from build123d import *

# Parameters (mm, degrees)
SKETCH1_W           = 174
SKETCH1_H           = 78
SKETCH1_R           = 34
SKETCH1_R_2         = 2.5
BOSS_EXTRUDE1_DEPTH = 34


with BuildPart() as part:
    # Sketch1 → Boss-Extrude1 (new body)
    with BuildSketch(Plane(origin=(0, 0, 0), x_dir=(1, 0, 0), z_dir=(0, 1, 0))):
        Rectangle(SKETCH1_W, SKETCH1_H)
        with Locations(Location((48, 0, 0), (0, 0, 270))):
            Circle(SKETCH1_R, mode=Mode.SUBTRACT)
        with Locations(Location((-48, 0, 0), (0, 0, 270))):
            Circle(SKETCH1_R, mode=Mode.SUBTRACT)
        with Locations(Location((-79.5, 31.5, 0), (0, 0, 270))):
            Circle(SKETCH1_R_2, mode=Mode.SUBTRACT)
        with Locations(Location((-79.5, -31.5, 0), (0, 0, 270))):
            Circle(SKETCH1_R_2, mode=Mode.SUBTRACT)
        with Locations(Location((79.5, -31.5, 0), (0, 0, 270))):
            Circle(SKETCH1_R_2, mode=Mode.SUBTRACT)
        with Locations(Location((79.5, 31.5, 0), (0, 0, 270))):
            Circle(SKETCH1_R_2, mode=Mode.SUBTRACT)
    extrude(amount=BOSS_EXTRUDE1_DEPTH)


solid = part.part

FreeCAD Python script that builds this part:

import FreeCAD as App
import Part
import Sketcher
from FreeCAD import Vector

doc = App.newDocument("Part")
params = doc.addObject("Spreadsheet::Sheet", "Params")
for row, (alias, value) in enumerate([
    ("sketch1_diameter", "5 mm"),
    ("sketch1_diameter2", "68 mm"),
    ("sketch1_width", "174 mm"),
    ("sketch1_height", "78 mm"),
    ("pad1_length", "34 mm"),
], start=1):
    params.set(f"A{row}", alias)
    params.set(f"B{row}", "=" + value)
    params.setAlias(f"B{row}", alias)

body = doc.addObject("PartDesign::Body", "Body")

# Sketch on XZ plane
sketch1 = doc.addObject("Sketcher::SketchObject", "Sketch")
body.addObject(sketch1)
sketch1.AttachmentSupport = (doc.XZ_Plane, [""])
sketch1.MapMode = "FlatFace"
sketch1.addGeometry([
    Part.LineSegment(Vector(-87, -39, 0), Vector(-87, 39, 0)),  # 0
    Part.LineSegment(Vector(-87, 39, 0), Vector(87, 39, 0)),  # 1
    Part.LineSegment(Vector(87, 39, 0), Vector(87, -39, 0)),  # 2
    Part.LineSegment(Vector(87, -39, 0), Vector(-87, -39, 0)),  # 3
    Part.Circle(Vector(-79.5, 31.5, 0), Vector(0, 0, 1), 2.5),  # 4
    Part.Circle(Vector(79.5, 31.5, 0), Vector(0, 0, 1), 2.5),  # 5
    Part.Circle(Vector(-48, 0, 0), Vector(0, 0, 1), 34),  # 6
    Part.Circle(Vector(-79.5, -31.5, 0), Vector(0, 0, 1), 2.5),  # 7
    Part.Circle(Vector(48, 0, 0), Vector(0, 0, 1), 34),  # 8
    Part.Circle(Vector(79.5, -31.5, 0), Vector(0, 0, 1), 2.5),  # 9
], False)
sketch1.addConstraint([
    Sketcher.Constraint("Coincident", 0, 2, 1, 1),
    Sketcher.Constraint("Coincident", 1, 2, 2, 1),
    Sketcher.Constraint("Coincident", 2, 2, 3, 1),
    Sketcher.Constraint("Coincident", 3, 2, 0, 1),
    Sketcher.Constraint("Vertical", 0),
    Sketcher.Constraint("Horizontal", 1),
    Sketcher.Constraint("Vertical", 2),
    Sketcher.Constraint("Horizontal", 3),
    Sketcher.Constraint("Equal", 4, 5),
    Sketcher.Constraint("Equal", 5, 7),
    Sketcher.Constraint("Equal", 6, 8),
    Sketcher.Constraint("Equal", 7, 9),
    Sketcher.Constraint("Symmetric", 5, 3, 7, 3, -1, 1),
    Sketcher.Constraint("Symmetric", 6, 3, 8, 3, -1, 1),
    Sketcher.Constraint("Symmetric", 4, 3, 9, 3, -1, 1),
    Sketcher.Constraint("Symmetric", 0, 2, 2, 2, -1, 1),
    Sketcher.Constraint("Symmetric", 4, 3, 5, 3, -2),
    Sketcher.Constraint("PointOnObject", 6, 3, -1),
    Sketcher.Constraint("Diameter", 4, 5.0),
    Sketcher.Constraint("Diameter", 6, 68.0),
    Sketcher.Constraint("DistanceX", 1, 1, 1, 2, 174.0),
    Sketcher.Constraint("DistanceY", 0, 1, 0, 2, 78.0),
    Sketcher.Constraint("DistanceX", 6, 3, -1, 1, 48.0),
    Sketcher.Constraint("DistanceX", 4, 3, 5, 3, 159.0),
    Sketcher.Constraint("DistanceY", 7, 3, 4, 3, 63.0),
])
sketch1.setExpression("Constraints[18]", "Params.sketch1_diameter")
sketch1.setExpression("Constraints[19]", "Params.sketch1_diameter2")
sketch1.setExpression("Constraints[20]", "Params.sketch1_width")
sketch1.setExpression("Constraints[21]", "Params.sketch1_height")
pad1 = doc.addObject("PartDesign::Pad", "Pad")
body.addObject(pad1)
pad1.Profile = sketch1
pad1.setExpression("Length", "Params.pad1_length")
pad1.Reversed = True

doc.recompute()
